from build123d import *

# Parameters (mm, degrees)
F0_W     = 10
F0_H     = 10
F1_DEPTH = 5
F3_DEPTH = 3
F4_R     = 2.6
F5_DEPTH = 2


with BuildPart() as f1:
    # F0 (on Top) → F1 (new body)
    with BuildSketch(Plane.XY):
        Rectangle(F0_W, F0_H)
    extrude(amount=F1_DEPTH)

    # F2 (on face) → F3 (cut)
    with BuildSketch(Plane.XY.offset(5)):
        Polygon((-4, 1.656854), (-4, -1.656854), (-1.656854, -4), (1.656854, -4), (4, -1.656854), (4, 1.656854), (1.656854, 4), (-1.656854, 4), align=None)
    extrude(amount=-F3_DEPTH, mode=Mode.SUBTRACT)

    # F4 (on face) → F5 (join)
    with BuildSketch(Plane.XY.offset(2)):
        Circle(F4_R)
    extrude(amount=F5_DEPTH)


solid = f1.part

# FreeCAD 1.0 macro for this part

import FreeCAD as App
import Part
import Sketcher
from FreeCAD import Vector
Q = App.Units.Quantity

doc = App.newDocument("Part")
body = doc.addObject("PartDesign::Body", "Body")

# Sketch on XY plane
sketch1 = body.newObject("Sketcher::SketchObject", "Sketch")
sketch1.AttachmentSupport = (doc.getObject("XY_Plane"), [""])
sketch1.MapMode = "FlatFace"
sketch1.addGeometry([
    Part.LineSegment(Vector(-5, 5, 0), Vector(-5, -5, 0)),
    Part.LineSegment(Vector(-5, -5, 0), Vector(5, -5, 0)),
    Part.LineSegment(Vector(5, -5, 0), Vector(5, 5, 0)),
    Part.LineSegment(Vector(5, 5, 0), Vector(-5, 5, 0)),
], False)
sketch1.addConstraint([
    Sketcher.Constraint("Coincident", 0, 2, 1, 1),
    Sketcher.Constraint("Coincident", 1, 2, 2, 1),
    Sketcher.Constraint("Coincident", 2, 2, 3, 1),
    Sketcher.Constraint("Coincident", 3, 2, 0, 1),
    Sketcher.Constraint("Vertical", 0),
    Sketcher.Constraint("Horizontal", 1),
    Sketcher.Constraint("Vertical", 2),
    Sketcher.Constraint("Horizontal", 3),
    Sketcher.Constraint("Symmetric", 0, 2, 2, 2, -1, 1),
    Sketcher.Constraint("Equal", 3, 0),
    Sketcher.Constraint("DistanceX", 1, 1, 1, 2, Q("10 mm")),
])
pad1 = body.newObject("PartDesign::Pad", "Pad")
pad1.Profile = sketch1
pad1.Length = 5

# Sketch on XY plane
sketch2 = body.newObject("Sketcher::SketchObject", "Sketch001")
sketch2.AttachmentSupport = (doc.getObject("XY_Plane"), [""])
sketch2.MapMode = "FlatFace"
sketch2.AttachmentOffset = App.Placement(Vector(0, 0, 5), App.Rotation())
sketch2.addGeometry([
    Part.LineSegment(Vector(-4, 1.7, 0), Vector(-4, -1.7, 0)),  # 0
    Part.LineSegment(Vector(-4, -1.7, 0), Vector(-1.7, -4, 0)),  # 1
    Part.LineSegment(Vector(-1.7, -4, 0), Vector(1.7, -4, 0)),  # 2
    Part.LineSegment(Vector(1.7, -4, 0), Vector(4, -1.7, 0)),  # 3
    Part.LineSegment(Vector(4, -1.7, 0), Vector(4, 1.7, 0)),  # 4
    Part.LineSegment(Vector(4, 1.7, 0), Vector(1.7, 4, 0)),  # 5
    Part.LineSegment(Vector(1.7, 4, 0), Vector(-1.7, 4, 0)),  # 6
    Part.LineSegment(Vector(-1.7, 4, 0), Vector(-4, 1.7, 0)),  # 7
], False)
sketch2.addConstraint([
    Sketcher.Constraint("Coincident", 0, 2, 1, 1),
    Sketcher.Constraint("Coincident", 1, 2, 2, 1),
    Sketcher.Constraint("Coincident", 2, 2, 3, 1),
    Sketcher.Constraint("Coincident", 3, 2, 4, 1),
    Sketcher.Constraint("Coincident", 4, 2, 5, 1),
    Sketcher.Constraint("Coincident", 5, 2, 6, 1),
    Sketcher.Constraint("Coincident", 6, 2, 7, 1),
    Sketcher.Constraint("Coincident", 7, 2, 0, 1),
    Sketcher.Constraint("Vertical", 0),
    Sketcher.Constraint("Horizontal", 2),
    Sketcher.Constraint("Vertical", 4),
    Sketcher.Constraint("Horizontal", 6),
    Sketcher.Constraint("Symmetric", 0, 2, 4, 2, -1, 1),
    Sketcher.Constraint("Symmetric", 1, 2, 5, 2, -1, 1),
    Sketcher.Constraint("Perpendicular", 1, 3),
    Sketcher.Constraint("Perpendicular", 5, 7),
    Sketcher.Constraint("Horizontal", 0, 2, 3, 2),
    Sketcher.Constraint("Horizontal", 4, 2, 7, 2),
    Sketcher.Constraint("Vertical", 2, 2, 5, 2),
    Sketcher.Constraint("Equal", 6, 0),
    Sketcher.Constraint("DistanceX", 0, 2, -1, 1, Q("4 mm")),
    Sketcher.Constraint("DistanceX", 2, 1, 2, 2, Q("3.313708 mm")),
])
pocket1 = body.newObject("PartDesign::Pocket", "Pocket")
pocket1.Profile = sketch2
pocket1.Length = 3

# Sketch on XY plane
sketch3 = body.newObject("Sketcher::SketchObject", "Sketch002")
sketch3.AttachmentSupport = (doc.getObject("XY_Plane"), [""])
sketch3.MapMode = "FlatFace"
sketch3.AttachmentOffset = App.Placement(Vector(0, 0, 2), App.Rotation())
sketch3.addGeometry(Part.Circle(Vector(0, 0, 0), Vector(0, 0, 1), 2.6), False)
sketch3.addConstraint([
    Sketcher.Constraint("Coincident", 0, 3, -1, 1),
    Sketcher.Constraint("Diameter", 0, Q("5.2 mm")),
])
pad2 = body.newObject("PartDesign::Pad", "Pad001")
pad2.Profile = sketch3
pad2.Length = 2

doc.recompute()
